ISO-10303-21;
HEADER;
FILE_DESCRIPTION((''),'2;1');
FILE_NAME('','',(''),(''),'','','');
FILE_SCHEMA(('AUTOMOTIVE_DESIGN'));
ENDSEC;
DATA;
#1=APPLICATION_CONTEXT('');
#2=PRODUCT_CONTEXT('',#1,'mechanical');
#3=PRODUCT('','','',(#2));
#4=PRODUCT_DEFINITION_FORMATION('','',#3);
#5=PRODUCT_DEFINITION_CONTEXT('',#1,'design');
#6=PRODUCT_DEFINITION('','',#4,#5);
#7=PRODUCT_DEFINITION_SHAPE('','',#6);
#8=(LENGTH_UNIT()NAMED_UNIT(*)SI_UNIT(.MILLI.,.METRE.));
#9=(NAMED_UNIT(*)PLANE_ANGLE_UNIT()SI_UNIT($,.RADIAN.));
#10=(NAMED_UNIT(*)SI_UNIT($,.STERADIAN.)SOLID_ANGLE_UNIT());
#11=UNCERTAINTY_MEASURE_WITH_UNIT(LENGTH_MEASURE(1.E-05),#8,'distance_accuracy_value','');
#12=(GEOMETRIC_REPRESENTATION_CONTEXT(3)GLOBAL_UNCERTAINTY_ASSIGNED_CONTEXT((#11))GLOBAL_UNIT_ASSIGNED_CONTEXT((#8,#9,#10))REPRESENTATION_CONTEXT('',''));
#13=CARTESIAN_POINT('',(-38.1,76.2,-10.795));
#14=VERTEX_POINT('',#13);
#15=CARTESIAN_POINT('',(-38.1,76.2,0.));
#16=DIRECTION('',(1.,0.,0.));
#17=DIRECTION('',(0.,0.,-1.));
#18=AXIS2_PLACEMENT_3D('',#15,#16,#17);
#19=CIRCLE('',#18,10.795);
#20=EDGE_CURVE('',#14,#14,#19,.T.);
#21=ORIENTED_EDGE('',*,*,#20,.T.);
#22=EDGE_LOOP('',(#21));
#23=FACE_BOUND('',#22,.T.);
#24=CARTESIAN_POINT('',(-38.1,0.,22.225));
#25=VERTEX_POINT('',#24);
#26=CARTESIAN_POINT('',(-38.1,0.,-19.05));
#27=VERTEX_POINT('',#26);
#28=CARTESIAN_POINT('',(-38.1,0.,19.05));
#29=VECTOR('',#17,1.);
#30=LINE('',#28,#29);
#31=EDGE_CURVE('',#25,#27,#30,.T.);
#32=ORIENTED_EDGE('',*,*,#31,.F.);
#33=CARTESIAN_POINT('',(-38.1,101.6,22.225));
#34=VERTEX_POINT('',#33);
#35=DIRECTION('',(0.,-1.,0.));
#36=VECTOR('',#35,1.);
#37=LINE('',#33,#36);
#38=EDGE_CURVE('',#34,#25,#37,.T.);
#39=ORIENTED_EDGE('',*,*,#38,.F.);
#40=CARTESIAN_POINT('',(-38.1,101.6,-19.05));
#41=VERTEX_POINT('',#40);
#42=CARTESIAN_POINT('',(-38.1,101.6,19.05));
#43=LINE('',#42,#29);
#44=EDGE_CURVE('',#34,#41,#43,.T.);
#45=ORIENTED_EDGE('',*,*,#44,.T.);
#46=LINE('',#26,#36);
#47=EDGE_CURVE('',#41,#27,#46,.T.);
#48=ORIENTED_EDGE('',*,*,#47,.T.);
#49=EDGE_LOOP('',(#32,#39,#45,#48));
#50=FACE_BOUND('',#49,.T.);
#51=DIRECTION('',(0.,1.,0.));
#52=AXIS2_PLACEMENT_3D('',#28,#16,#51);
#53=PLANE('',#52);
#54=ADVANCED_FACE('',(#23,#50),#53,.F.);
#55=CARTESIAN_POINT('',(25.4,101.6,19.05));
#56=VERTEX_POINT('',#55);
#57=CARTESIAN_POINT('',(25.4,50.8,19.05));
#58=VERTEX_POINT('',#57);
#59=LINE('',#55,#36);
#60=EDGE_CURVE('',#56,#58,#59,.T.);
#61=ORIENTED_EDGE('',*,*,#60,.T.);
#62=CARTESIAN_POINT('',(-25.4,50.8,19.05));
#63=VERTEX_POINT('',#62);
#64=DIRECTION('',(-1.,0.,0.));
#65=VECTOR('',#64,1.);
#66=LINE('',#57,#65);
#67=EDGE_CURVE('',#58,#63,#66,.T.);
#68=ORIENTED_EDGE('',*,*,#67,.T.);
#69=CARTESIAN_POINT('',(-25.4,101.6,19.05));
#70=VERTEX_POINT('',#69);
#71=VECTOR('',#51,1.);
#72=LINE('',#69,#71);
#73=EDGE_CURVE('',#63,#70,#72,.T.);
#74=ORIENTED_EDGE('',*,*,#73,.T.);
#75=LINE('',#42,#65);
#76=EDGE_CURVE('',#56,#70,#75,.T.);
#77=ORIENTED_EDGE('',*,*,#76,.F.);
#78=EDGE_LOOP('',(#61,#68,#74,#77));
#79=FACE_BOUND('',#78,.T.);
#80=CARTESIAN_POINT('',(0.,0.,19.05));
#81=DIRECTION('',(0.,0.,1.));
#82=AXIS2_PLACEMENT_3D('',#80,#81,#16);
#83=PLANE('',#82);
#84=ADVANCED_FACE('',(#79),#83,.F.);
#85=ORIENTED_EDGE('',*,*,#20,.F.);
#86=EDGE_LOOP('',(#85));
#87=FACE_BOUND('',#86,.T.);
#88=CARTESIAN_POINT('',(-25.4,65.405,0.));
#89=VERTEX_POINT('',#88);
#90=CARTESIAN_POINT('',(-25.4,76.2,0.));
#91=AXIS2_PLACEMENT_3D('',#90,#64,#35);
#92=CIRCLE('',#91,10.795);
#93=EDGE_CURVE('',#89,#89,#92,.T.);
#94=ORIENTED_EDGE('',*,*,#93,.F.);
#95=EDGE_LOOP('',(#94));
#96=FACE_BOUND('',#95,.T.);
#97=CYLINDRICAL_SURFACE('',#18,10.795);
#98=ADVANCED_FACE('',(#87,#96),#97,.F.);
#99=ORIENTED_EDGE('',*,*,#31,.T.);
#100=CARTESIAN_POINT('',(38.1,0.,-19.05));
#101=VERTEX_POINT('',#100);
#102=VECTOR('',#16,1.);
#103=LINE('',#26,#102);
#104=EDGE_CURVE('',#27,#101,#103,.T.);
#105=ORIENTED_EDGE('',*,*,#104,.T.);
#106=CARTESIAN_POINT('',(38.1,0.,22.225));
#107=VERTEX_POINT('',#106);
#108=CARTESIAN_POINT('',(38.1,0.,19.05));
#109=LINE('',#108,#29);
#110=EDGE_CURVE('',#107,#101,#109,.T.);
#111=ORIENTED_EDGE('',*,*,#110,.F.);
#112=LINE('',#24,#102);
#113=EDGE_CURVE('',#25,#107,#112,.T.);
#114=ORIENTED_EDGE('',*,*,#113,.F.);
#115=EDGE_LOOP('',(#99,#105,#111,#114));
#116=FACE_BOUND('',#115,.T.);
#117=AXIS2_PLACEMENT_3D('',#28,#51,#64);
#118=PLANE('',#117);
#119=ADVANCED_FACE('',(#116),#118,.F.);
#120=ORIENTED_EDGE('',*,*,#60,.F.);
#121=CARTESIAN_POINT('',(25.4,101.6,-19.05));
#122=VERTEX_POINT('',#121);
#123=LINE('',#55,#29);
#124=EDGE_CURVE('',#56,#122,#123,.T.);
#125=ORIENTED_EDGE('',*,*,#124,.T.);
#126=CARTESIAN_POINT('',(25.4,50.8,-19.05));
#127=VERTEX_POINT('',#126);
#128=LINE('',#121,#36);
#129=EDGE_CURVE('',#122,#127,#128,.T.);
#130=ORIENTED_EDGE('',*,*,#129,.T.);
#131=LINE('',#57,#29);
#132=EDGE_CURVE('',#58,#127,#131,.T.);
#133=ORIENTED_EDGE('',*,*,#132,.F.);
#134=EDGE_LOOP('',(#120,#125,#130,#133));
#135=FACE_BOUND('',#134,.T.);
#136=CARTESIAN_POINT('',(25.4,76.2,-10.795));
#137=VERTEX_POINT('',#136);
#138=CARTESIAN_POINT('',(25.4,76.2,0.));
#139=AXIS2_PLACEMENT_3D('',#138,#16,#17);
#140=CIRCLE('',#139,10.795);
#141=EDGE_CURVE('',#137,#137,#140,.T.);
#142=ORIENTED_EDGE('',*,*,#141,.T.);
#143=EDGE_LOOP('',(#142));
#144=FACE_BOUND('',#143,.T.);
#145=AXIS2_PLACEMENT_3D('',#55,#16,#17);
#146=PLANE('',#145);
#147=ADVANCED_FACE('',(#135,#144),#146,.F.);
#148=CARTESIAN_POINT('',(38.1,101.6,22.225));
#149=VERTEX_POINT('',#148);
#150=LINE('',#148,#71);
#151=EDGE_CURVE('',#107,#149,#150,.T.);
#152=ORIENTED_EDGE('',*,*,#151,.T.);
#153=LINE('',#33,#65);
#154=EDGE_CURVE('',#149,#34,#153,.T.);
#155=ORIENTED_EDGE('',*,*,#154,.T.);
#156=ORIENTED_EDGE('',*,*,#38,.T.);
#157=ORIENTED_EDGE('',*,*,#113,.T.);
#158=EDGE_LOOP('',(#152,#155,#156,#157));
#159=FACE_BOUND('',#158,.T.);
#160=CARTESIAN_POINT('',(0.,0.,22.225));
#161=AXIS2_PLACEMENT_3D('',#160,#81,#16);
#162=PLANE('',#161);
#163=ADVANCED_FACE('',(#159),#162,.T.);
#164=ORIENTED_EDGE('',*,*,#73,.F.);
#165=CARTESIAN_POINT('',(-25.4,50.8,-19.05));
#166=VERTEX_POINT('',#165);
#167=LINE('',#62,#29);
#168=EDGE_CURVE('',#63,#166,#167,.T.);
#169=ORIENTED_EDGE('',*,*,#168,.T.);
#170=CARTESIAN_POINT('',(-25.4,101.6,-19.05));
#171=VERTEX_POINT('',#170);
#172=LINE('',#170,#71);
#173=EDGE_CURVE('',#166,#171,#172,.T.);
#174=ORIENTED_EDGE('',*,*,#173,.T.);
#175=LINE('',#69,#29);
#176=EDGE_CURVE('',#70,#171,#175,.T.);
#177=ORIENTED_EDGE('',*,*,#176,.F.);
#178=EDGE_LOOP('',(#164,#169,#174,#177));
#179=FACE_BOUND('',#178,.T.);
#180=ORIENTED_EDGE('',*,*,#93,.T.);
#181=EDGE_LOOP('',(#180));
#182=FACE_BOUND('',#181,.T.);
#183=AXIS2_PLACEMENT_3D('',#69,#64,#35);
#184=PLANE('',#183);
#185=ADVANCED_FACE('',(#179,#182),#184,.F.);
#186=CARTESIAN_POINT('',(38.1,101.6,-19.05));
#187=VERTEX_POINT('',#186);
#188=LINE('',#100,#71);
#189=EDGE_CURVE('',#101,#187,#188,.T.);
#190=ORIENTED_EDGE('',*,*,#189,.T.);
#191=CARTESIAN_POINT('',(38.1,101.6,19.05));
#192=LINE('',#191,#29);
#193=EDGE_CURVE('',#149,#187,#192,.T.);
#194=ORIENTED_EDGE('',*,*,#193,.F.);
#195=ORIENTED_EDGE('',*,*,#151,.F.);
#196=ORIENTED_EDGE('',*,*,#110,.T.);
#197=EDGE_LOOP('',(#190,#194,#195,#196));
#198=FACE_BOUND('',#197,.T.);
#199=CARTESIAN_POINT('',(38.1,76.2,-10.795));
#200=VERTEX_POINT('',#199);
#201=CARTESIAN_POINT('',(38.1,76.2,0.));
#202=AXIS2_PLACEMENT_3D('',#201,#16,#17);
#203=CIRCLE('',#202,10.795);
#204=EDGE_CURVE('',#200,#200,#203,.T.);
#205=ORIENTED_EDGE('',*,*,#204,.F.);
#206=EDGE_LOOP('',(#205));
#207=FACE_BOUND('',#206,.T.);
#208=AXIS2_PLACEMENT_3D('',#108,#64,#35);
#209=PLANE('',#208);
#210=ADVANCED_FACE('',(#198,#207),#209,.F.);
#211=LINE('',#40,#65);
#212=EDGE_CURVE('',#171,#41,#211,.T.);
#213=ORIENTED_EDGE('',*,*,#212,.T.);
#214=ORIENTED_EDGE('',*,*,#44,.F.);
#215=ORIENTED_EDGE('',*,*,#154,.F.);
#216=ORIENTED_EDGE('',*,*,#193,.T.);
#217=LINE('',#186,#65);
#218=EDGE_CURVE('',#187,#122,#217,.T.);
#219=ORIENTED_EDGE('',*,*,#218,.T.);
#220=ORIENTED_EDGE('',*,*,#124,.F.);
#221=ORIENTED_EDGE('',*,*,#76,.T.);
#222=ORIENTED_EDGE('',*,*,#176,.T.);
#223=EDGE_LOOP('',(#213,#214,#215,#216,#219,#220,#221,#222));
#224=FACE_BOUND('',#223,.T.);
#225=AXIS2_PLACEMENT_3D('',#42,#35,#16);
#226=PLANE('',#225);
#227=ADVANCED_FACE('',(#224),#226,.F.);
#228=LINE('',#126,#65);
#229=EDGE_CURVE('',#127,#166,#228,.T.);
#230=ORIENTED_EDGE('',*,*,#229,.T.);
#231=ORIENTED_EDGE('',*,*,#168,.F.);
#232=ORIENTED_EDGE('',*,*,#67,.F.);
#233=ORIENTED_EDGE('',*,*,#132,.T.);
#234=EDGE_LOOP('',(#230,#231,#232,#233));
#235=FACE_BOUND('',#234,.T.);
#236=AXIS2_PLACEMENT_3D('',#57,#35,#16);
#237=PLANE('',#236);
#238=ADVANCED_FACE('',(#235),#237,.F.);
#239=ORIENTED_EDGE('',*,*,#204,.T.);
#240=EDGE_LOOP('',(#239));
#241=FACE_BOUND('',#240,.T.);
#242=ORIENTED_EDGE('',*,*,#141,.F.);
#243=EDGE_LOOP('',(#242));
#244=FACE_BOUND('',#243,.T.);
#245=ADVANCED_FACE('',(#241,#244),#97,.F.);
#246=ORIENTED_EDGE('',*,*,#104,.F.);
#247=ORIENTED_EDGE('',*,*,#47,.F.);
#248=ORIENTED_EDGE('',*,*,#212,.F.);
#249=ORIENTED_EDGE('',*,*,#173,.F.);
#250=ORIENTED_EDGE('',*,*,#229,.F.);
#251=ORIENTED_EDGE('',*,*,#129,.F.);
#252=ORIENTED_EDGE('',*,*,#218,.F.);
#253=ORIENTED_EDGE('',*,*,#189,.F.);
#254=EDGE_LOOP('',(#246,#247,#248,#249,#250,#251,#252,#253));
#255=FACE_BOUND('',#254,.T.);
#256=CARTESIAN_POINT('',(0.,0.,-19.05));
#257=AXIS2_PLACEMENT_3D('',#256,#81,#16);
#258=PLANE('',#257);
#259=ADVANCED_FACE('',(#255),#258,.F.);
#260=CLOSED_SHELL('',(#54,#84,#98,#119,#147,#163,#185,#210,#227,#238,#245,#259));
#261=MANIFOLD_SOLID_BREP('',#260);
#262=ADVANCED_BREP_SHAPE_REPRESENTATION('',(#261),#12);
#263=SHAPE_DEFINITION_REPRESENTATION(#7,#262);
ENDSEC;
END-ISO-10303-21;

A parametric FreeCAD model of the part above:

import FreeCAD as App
import Part
import Sketcher
Q = App.Units.Quantity

doc = App.newDocument("Part")
body = doc.addObject("PartDesign::Body", "Body")

sketch1 = body.newObject("Sketcher::SketchObject", "Sketch")
sketch1.AttachmentSupport = (doc.getObject("XY_Plane"), [""])
sketch1.MapMode = "FlatFace"
sketch1.addGeometry([
    Part.LineSegment(App.Vector(-38.1, 0, 0), App.Vector(38.1, 0, 0)),
    Part.LineSegment(App.Vector(38.1, 0, 0), App.Vector(38.1, 101.6, 0)),
    Part.LineSegment(App.Vector(38.1, 101.6, 0), App.Vector(25.4, 101.6, 0)),
    Part.LineSegment(App.Vector(25.4, 101.6, 0), App.Vector(25.4, 50.8, 0)),
    Part.LineSegment(App.Vector(25.4, 50.8, 0), App.Vector(-25.4, 50.8, 0)),
    Part.LineSegment(App.Vector(-25.4, 50.8, 0), App.Vector(-25.4, 101.6, 0)),
    Part.LineSegment(App.Vector(-25.4, 101.6, 0), App.Vector(-38.1, 101.6, 0)),
    Part.LineSegment(App.Vector(-38.1, 101.6, 0), App.Vector(-38.1, 0, 0)),
], False)
sketch1.addConstraint([
    Sketcher.Constraint("Coincident", 0, 2, 1, 1),
    Sketcher.Constraint("Coincident", 1, 2, 2, 1),
    Sketcher.Constraint("Coincident", 2, 2, 3, 1),
    Sketcher.Constraint("Coincident", 3, 2, 4, 1),
    Sketcher.Constraint("Coincident", 4, 2, 5, 1),
    Sketcher.Constraint("Coincident", 5, 2, 6, 1),
    Sketcher.Constraint("Coincident", 6, 2, 7, 1),
    Sketcher.Constraint("Coincident", 7, 2, 0, 1),
    Sketcher.Constraint("Horizontal", 0),
    Sketcher.Constraint("Vertical", 1),
    Sketcher.Constraint("Horizontal", 2),
    Sketcher.Constraint("Vertical", 3),
    Sketcher.Constraint("Horizontal", 4),
    Sketcher.Constraint("Vertical", 5),
    Sketcher.Constraint("Horizontal", 6),
    Sketcher.Constraint("Vertical", 7),
    Sketcher.Constraint("Symmetric", 0, 2, 7, 2, -1, 1),
    Sketcher.Constraint("Symmetric", 2, 2, 5, 2, -2),
    Sketcher.Constraint("Equal", 4, 3),
    Sketcher.Constraint("DistanceX", 0, 1, 0, 2, Q("3 in")),
    Sketcher.Constraint("DistanceX", 4, 2, 4, 1, Q("2 in")),
    Sketcher.Constraint("DistanceY", 1, 1, 1, 2, Q("4 in")),
])
pad1 = body.newObject("PartDesign::Pad", "Pad")
pad1.Profile = sketch1
pad1.Length = Q("1.5 in")
pad1.Midplane = True

sketch2 = body.newObject("Sketcher::SketchObject", "Sketch001")
sketch2.AttachmentSupport = (doc.getObject("YZ_Plane"), [""])
sketch2.MapMode = "FlatFace"
sketch2.addGeometry(Part.Circle(App.Vector(76.2, 0, 0), App.Vector(0, 0, 1), 10.795), False)
sketch2.addConstraint([
    Sketcher.Constraint("PointOnObject", 0, 3, -1),
    Sketcher.Constraint("Diameter", 0, Q("0.85 in")),
    Sketcher.Constraint("DistanceX", -1, 1, 0, 3, Q("3 in")),
])
pocket1 = body.newObject("PartDesign::Pocket", "Pocket")
pocket1.Profile = sketch2
pocket1.Type = "ThroughAll"
pocket1.Midplane = True

sketch3 = body.newObject("Sketcher::SketchObject", "Sketch002")
sketch3.AttachmentSupport = (doc.getObject("XY_Plane"), [""])
sketch3.MapMode = "FlatFace"
sketch3.AttachmentOffset = App.Placement(App.Vector(0, 0, 0.75 * 25.4), App.Rotation())
sketch3.addGeometry([
    Part.LineSegment(App.Vector(-38.1, 101.6, 0), App.Vector(-38.1, 0, 0)),
    Part.LineSegment(App.Vector(-38.1, 0, 0), App.Vector(38.1, 0, 0)),
    Part.LineSegment(App.Vector(38.1, 0, 0), App.Vector(38.1, 101.6, 0)),
    Part.LineSegment(App.Vector(38.1, 101.6, 0), App.Vector(-38.1, 101.6, 0)),
], False)
sketch3.addConstraint([
    Sketcher.Constraint("Coincident", 0, 2, 1, 1),
    Sketcher.Constraint("Coincident", 1, 2, 2, 1),
    Sketcher.Constraint("Coincident", 2, 2, 3, 1),
    Sketcher.Constraint("Coincident", 3, 2, 0, 1),
    Sketcher.Constraint("Vertical", 0),
    Sketcher.Constraint("Horizontal", 1),
    Sketcher.Constraint("Vertical", 2),
    Sketcher.Constraint("Horizontal", 3),
    Sketcher.Constraint("Symmetric", 0, 2, 1, 2, -1, 1),
    Sketcher.Constraint("DistanceX", 1, 1, 1, 2, Q("3 in")),
    Sketcher.Constraint("DistanceY", 0, 2, 0, 1, Q("4 in")),
])
pad2 = body.newObject("PartDesign::Pad", "Pad001")
pad2.Profile = sketch3
pad2.Length = Q("0.125 in")

doc.recompute()
